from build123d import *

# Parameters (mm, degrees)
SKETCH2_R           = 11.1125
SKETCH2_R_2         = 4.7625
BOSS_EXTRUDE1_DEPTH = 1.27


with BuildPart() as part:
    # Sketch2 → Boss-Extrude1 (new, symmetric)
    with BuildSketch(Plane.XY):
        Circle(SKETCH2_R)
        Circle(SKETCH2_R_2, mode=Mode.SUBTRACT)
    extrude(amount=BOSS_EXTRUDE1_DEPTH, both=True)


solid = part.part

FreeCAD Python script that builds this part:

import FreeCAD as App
import Part
import Sketcher

V = App.Vector
Q = App.Units.Quantity

doc = App.newDocument("Part")
params = doc.addObject("Spreadsheet::Sheet", "Params")
for row, (alias, value) in enumerate([
    ("sketch1_diameter", "0.875 in"),
    ("sketch1_diameter2", "0.375 in"),
    ("pad1_length", "0.1 in"),
], start=1):
    params.set(f"A{row}", alias)
    params.set(f"B{row}", "=" + value)
    params.setAlias(f"B{row}", alias)

body = doc.addObject("PartDesign::Body", "Body")

# Sketch on XY plane
sketch1 = body.newObject("Sketcher::SketchObject", "Sketch")
sketch1.AttachmentSupport = (doc.getObject("XY_Plane"), [""])
sketch1.MapMode = "FlatFace"
sketch1.addGeometry([
    Part.Circle(V(0, 0, 0), V(0, 0, 1), 11.1),
    Part.Circle(V(0, 0, 0), V(0, 0, 1), 4.8),
], False)
sketch1.addConstraint([
    Sketcher.Constraint("Coincident", 0, 3, -1, 1),
    Sketcher.Constraint("Coincident", 1, 3, -1, 1),
    Sketcher.Constraint("Diameter", 0, Q("0.875 in")),
    Sketcher.Constraint("Diameter", 1, Q("0.375 in")),
])
sketch1.setExpression("Constraints[2]", "Params.sketch1_diameter")
sketch1.setExpression("Constraints[3]", "Params.sketch1_diameter2")
pad1 = body.newObject("PartDesign::Pad", "Pad")
pad1.Profile = sketch1
pad1.setExpression("Length", "Params.pad1_length")
pad1.Midplane = True

doc.recompute()
